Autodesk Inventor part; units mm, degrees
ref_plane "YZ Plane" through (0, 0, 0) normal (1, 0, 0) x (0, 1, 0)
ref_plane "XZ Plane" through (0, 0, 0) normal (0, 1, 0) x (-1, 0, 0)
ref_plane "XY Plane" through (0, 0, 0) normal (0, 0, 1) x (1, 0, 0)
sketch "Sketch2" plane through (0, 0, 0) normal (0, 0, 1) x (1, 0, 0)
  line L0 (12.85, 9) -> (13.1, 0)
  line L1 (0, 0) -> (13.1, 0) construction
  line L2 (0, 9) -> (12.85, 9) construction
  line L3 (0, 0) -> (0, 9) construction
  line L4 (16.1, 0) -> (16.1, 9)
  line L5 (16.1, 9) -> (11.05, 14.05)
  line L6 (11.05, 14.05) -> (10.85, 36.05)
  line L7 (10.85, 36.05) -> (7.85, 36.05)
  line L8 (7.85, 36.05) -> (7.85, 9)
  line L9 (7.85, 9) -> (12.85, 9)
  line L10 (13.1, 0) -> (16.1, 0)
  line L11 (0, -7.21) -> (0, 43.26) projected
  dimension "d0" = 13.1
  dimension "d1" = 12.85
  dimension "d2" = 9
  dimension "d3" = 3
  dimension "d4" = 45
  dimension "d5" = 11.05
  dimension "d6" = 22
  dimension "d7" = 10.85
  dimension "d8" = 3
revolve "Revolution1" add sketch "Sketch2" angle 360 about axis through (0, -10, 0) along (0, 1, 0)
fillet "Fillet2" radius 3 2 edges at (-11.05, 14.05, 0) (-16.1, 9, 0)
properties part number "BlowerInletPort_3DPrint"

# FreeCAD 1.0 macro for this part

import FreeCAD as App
import Part
import Sketcher
Q = App.Units.Quantity


def edges_at(feature, points):
    """Names of the edges that pass closest to the given points."""
    edges = feature.Shape.Edges
    near = lambda p: min(range(len(edges)), key=lambda i: edges[i].distToShape(Part.Vertex(*p))[0])
    return sorted({f"Edge{near(p) + 1}" for p in points})

doc = App.newDocument("Part")
body = doc.addObject("PartDesign::Body", "Body")

sketch1 = doc.addObject("Sketcher::SketchObject", "Sketch")
body.addObject(sketch1)
sketch1.AttachmentSupport = (doc.XY_Plane, [""])
sketch1.MapMode = "FlatFace"
sketch1.addGeometry([
    Part.LineSegment(App.Vector(7.85, 9, 0), App.Vector(12.85, 9, 0)),
    Part.LineSegment(App.Vector(12.85, 9, 0), App.Vector(13.1, 0, 0)),
    Part.LineSegment(App.Vector(13.1, 0, 0), App.Vector(16.1, 0, 0)),
    Part.LineSegment(App.Vector(16.1, 0, 0), App.Vector(16.1, 9, 0)),
    Part.LineSegment(App.Vector(16.1, 9, 0), App.Vector(11.05, 14.05, 0)),
    Part.LineSegment(App.Vector(11.05, 14.05, 0), App.Vector(10.85, 36.05, 0)),
    Part.LineSegment(App.Vector(10.85, 36.05, 0), App.Vector(7.85, 36.05, 0)),
    Part.LineSegment(App.Vector(7.85, 36.05, 0), App.Vector(7.85, 9, 0)),
], False)
sketch1.addConstraint([
    Sketcher.Constraint("Coincident", 0, 2, 1, 1),
    Sketcher.Constraint("Coincident", 1, 2, 2, 1),
    Sketcher.Constraint("Coincident", 2, 2, 3, 1),
    Sketcher.Constraint("Coincident", 3, 2, 4, 1),
    Sketcher.Constraint("Coincident", 4, 2, 5, 1),
    Sketcher.Constraint("Coincident", 5, 2, 6, 1),
    Sketcher.Constraint("Coincident", 6, 2, 7, 1),
    Sketcher.Constraint("Coincident", 7, 2, 0, 1),
    Sketcher.Constraint("Horizontal", 0),
    Sketcher.Constraint("Horizontal", 2),
    Sketcher.Constraint("Vertical", 3),
    Sketcher.Constraint("Horizontal", 6),
    Sketcher.Constraint("Vertical", 7),
    Sketcher.Constraint("PointOnObject", 1, 2, -1),
    Sketcher.Constraint("Horizontal", 0, 2, 3, 2),
    Sketcher.Constraint("Equal", 2, 6),
    Sketcher.Constraint("DistanceX", 2, 1, 2, 2, 3.0),
    Sketcher.Constraint("DistanceY", 3, 1, 3, 2, 9.0),
    Sketcher.Constraint("DistanceY", 4, 2, 5, 2, 22.0),
    Sketcher.Constraint("DistanceX", -1, 1, 1, 2, 13.1),
    Sketcher.Constraint("DistanceX", 0, 1, 0, 2, 5.0),
    Sketcher.Constraint("DistanceX", -1, 1, 0, 2, 12.85),
    Sketcher.Constraint("DistanceX", -1, 1, 4, 2, 11.05),
    Sketcher.Constraint("Angle", 4, Q("135 deg")),
])
revolution = doc.addObject("PartDesign::Revolution", "Revolution")
body.addObject(revolution)
revolution.Profile = sketch1
revolution.ReferenceAxis = (sketch1, ["V_Axis"])
revolution.Angle = 360
doc.recompute()

fillet = doc.addObject("PartDesign::Fillet", "Fillet")
body.addObject(fillet)
fillet.Base = (revolution, edges_at(revolution, [(-11.05, 14.05, 0), (-16.1, 9, 0)]))
fillet.Radius = 3

doc.recompute()
